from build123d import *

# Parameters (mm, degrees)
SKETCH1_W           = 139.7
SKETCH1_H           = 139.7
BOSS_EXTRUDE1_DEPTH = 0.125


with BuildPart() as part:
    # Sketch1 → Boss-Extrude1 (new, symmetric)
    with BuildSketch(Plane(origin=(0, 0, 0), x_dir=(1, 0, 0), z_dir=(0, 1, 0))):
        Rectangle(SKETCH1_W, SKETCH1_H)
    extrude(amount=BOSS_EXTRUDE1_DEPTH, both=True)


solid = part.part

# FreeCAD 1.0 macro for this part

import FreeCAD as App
import Part
import Sketcher
Q = App.Units.Quantity


def add_polygon(sketch, points):
    """Adds a closed chain of lines whose ends are joined by coincident constraints."""
    first, n = sketch.GeometryCount, len(points)
    for a, b in zip(points, points[1:] + points[:1]):
        sketch.addGeometry(Part.LineSegment(App.Vector(*a, 0), App.Vector(*b, 0)), False)
    for i in range(n):
        sketch.addConstraint(Sketcher.Constraint("Coincident", first + i, 2, first + (i + 1) % n, 1))

doc = App.newDocument("Part")
params = doc.addObject("Spreadsheet::Sheet", "Params")
for row, (alias, value) in enumerate([
    ("sketch1_width", "5.5 in"),
    ("pad1_length", "0.25 mm"),
], start=1):
    params.set(f"A{row}", alias)
    params.set(f"B{row}", "=" + value)
    params.setAlias(f"B{row}", alias)

body = doc.addObject("PartDesign::Body", "Body")

# Sketch on XZ plane
sketch1 = body.newObject("Sketcher::SketchObject", "Sketch")
sketch1.AttachmentSupport = (doc.getObject("XZ_Plane"), [""])
sketch1.MapMode = "FlatFace"
add_polygon(sketch1, [(-70, -70), (-70, 70), (70, 70), (70, -70)])  # lines 0-3
sketch1.addConstraint([
    Sketcher.Constraint("Vertical", 0),
    Sketcher.Constraint("Horizontal", 1),
    Sketcher.Constraint("Vertical", 2),
    Sketcher.Constraint("Horizontal", 3),
    Sketcher.Constraint("Symmetric", 0, 2, 2, 2, -1, 1),
    Sketcher.Constraint("Equal", 3, 0),
    Sketcher.Constraint("DistanceX", 1, 1, 1, 2, Q("5.5 in")),
])
sketch1.setExpression("Constraints[10]", "Params.sketch1_width")
pad1 = body.newObject("PartDesign::Pad", "Pad")
pad1.Profile = sketch1
pad1.setExpression("Length", "Params.pad1_length")
pad1.Midplane = True

doc.recompute()
